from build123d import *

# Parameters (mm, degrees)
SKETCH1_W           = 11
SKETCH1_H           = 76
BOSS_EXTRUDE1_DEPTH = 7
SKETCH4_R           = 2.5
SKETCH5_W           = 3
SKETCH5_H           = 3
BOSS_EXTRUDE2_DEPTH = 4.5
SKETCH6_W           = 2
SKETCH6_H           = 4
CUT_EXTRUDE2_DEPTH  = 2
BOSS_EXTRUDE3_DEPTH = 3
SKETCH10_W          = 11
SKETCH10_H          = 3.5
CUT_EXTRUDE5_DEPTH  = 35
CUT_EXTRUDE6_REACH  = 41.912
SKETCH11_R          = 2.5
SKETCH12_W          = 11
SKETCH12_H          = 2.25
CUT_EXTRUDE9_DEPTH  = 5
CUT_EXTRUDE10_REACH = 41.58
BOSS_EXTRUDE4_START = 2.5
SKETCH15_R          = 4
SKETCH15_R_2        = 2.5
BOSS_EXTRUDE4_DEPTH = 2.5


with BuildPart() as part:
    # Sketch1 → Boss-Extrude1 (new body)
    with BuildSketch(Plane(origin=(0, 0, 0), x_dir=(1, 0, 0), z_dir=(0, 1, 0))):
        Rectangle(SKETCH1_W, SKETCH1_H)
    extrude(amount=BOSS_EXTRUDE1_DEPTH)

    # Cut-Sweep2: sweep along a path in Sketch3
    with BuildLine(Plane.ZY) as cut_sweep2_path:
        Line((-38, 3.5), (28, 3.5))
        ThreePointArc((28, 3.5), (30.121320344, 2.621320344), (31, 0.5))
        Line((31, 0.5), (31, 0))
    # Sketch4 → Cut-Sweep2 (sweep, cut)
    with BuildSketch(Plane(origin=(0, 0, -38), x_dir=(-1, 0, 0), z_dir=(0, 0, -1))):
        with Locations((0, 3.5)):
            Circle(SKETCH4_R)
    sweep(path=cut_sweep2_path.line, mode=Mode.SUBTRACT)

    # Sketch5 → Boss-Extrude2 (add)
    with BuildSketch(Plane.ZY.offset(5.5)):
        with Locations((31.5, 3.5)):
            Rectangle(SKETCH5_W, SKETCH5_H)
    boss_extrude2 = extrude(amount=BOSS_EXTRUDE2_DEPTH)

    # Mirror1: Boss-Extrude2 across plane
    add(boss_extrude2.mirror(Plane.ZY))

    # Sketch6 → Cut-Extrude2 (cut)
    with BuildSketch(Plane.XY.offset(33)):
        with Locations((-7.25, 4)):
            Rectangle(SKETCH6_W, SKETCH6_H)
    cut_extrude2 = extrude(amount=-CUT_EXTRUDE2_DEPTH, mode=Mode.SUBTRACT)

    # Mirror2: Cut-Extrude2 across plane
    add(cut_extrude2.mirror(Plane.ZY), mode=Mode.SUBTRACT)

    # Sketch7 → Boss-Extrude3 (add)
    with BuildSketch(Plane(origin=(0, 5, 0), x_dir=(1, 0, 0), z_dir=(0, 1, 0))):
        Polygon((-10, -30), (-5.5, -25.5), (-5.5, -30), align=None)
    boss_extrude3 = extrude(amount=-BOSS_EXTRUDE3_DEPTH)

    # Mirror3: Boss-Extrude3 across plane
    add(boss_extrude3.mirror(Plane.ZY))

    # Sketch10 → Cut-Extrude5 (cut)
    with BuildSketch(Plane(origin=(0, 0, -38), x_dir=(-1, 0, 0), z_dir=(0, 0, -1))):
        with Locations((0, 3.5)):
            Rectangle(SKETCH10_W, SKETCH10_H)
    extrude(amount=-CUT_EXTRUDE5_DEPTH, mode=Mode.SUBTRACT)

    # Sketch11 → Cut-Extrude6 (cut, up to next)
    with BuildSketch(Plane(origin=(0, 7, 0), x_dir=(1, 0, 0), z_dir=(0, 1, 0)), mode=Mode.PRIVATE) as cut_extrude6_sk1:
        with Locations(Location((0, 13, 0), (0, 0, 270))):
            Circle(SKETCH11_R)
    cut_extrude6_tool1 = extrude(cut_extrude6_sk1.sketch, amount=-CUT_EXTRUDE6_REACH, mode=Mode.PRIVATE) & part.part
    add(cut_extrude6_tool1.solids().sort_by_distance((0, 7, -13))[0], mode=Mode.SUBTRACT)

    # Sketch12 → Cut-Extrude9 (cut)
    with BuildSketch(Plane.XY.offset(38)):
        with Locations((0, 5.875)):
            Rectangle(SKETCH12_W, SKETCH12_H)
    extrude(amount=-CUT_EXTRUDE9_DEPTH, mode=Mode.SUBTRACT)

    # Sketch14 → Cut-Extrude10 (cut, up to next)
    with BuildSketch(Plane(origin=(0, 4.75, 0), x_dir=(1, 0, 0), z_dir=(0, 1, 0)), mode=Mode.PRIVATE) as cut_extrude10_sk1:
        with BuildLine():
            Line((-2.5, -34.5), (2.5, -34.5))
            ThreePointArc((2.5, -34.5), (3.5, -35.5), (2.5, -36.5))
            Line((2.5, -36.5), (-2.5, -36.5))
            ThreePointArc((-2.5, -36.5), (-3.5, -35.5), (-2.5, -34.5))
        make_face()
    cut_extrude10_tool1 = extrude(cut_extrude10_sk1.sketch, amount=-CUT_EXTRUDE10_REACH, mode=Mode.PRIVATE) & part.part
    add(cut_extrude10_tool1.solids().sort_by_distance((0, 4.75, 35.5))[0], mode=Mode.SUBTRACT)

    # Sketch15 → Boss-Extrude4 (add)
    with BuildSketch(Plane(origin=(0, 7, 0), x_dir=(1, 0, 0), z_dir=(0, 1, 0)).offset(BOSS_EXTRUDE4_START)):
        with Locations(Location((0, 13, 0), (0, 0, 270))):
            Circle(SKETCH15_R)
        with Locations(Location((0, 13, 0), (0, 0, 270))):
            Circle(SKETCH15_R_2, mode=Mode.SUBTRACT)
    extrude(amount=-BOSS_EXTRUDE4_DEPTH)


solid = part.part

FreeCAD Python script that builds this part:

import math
import FreeCAD as App
import Part
import Sketcher
Q = App.Units.Quantity

doc = App.newDocument("Part")
params = doc.addObject("Spreadsheet::Sheet", "Params")
for row, (alias, value) in enumerate([
    ("sketch1_width", "11 mm"),
    ("sketch1_height", "76 mm"),
    ("pad1_length", "7 mm"),
    ("sketch2_diameter", "5 mm"),
    ("sketch3_radius", "3 mm"),
    ("sketch3_height", "66 mm"),
    ("sketch3_width", "0.5 mm"),
    ("sketch4_width", "3 mm"),
    ("pad2_length", "4.5 mm"),
    ("sketch5_width", "2 mm"),
    ("sketch5_height", "4 mm"),
    ("pocket1_length", "2 mm"),
    ("sketch6_width", "4.5 mm"),
    ("pad3_length", "3 mm"),
    ("sketch7_width", "11 mm"),
    ("sketch7_height", "3.5 mm"),
    ("pocket2_length", "35 mm"),
    ("sketch8_diameter", "5 mm"),
    ("pocket3_length", "1.75 mm"),
    ("sketch9_width", "11 mm"),
    ("sketch9_height", "2.25 mm"),
    ("pocket4_length", "5 mm"),
    ("sketch10_radius", "1 mm"),
    ("sketch10_width", "5 mm"),
    ("sketch11_diameter", "8 mm"),
    ("sketch11_diameter2", "5 mm"),
    ("pad4_length", "2.5 mm"),
], start=1):
    params.set(f"A{row}", alias)
    params.set(f"B{row}", "=" + value)
    params.setAlias(f"B{row}", alias)

body = doc.addObject("PartDesign::Body", "Body")

sketch1 = body.newObject("Sketcher::SketchObject", "Sketch")
sketch1.AttachmentSupport = (doc.getObject("XZ_Plane"), [""])
sketch1.MapMode = "FlatFace"
sketch1.addGeometry([
    Part.LineSegment(App.Vector(-5.5, -38, 0), App.Vector(-5.5, 38, 0)),
    Part.LineSegment(App.Vector(-5.5, 38, 0), App.Vector(5.5, 38, 0)),
    Part.LineSegment(App.Vector(5.5, 38, 0), App.Vector(5.5, -38, 0)),
    Part.LineSegment(App.Vector(5.5, -38, 0), App.Vector(-5.5, -38, 0)),
], False)
sketch1.addConstraint([
    Sketcher.Constraint("Coincident", 0, 2, 1, 1),
    Sketcher.Constraint("Coincident", 1, 2, 2, 1),
    Sketcher.Constraint("Coincident", 2, 2, 3, 1),
    Sketcher.Constraint("Coincident", 3, 2, 0, 1),
    Sketcher.Constraint("Vertical", 0),
    Sketcher.Constraint("Horizontal", 1),
    Sketcher.Constraint("Vertical", 2),
    Sketcher.Constraint("Horizontal", 3),
    Sketcher.Constraint("Symmetric", 0, 2, 2, 2, -1, 1),
    Sketcher.Constraint("DistanceX", 1, 1, 1, 2, Q("11 mm")),
    Sketcher.Constraint("DistanceY", 0, 1, 0, 2, Q("76 mm")),
])
sketch1.setExpression("Constraints[9]", "Params.sketch1_width")
sketch1.setExpression("Constraints[10]", "Params.sketch1_height")
pad1 = body.newObject("PartDesign::Pad", "Pad")
pad1.Profile = sketch1
pad1.setExpression("Length", "Params.pad1_length")
pad1.Reversed = True

sketch2 = body.newObject("Sketcher::SketchObject", "Sketch001")
sketch2.AttachmentSupport = (doc.getObject("XY_Plane"), [""])
sketch2.MapMode = "FlatFace"
sketch2.AttachmentOffset = App.Placement(App.Vector(0, 0, -38), App.Rotation())
sketch2.addGeometry(Part.Circle(App.Vector(0, 3.5, 0), App.Vector(0, 0, 1), 2.5), False)
sketch2.addConstraint([
    Sketcher.Constraint("PointOnObject", 0, 3, -2),
    Sketcher.Constraint("Diameter", 0, Q("5 mm")),
    Sketcher.Constraint("DistanceY", -1, 1, 0, 3, Q("3.5 mm")),
])
sketch2.setExpression("Constraints[1]", "Params.sketch2_diameter")

sketch3 = body.newObject("Sketcher::SketchObject", "Sketch002")
sketch3.AttachmentSupport = (doc.getObject("YZ_Plane"), [""])
sketch3.MapMode = "FlatFace"
sketch3.addGeometry([
    Part.LineSegment(App.Vector(3.5, -38, 0), App.Vector(3.5, 28, 0)),
    Part.ArcOfCircle(Part.Circle(App.Vector(0.5, 28, 0), App.Vector(0, 0, 1), 3), math.radians(0), math.radians(90)),
    Part.LineSegment(App.Vector(0.5, 31, 0), App.Vector(0, 31, 0)),
], False)
sketch3.addConstraint([
    Sketcher.Constraint("Tangent", 0, 2, 1, 1),
    Sketcher.Constraint("Tangent", 1, 2, 2, 1),
    Sketcher.Constraint("Vertical", 0),
    Sketcher.Constraint("Horizontal", 2),
    Sketcher.Constraint("PointOnObject", 2, 2, -2),
    Sketcher.Constraint("Radius", 1, Q("3 mm")),
    Sketcher.Constraint("DistanceY", 0, 1, 0, 2, Q("66 mm")),
    Sketcher.Constraint("DistanceX", 2, 2, 2, 1, Q("0.5 mm")),
    Sketcher.Constraint("DistanceY", -1, 1, 1, 3, Q("28 mm")),
])
sketch3.setExpression("Constraints[5]", "Params.sketch3_radius")
sketch3.setExpression("Constraints[6]", "Params.sketch3_height")
sketch3.setExpression("Constraints[7]", "Params.sketch3_width")
doc.recompute()

subtractivepipe = body.newObject("PartDesign::SubtractivePipe", "SubtractivePipe")
subtractivepipe.Profile = sketch2
subtractivepipe.Spine = (sketch3, ["Edge1", "Edge2", "Edge3"])

sketch4 = body.newObject("Sketcher::SketchObject", "Sketch003")
sketch4.AttachmentSupport = (doc.getObject("YZ_Plane"), [""])
sketch4.MapMode = "FlatFace"
sketch4.AttachmentOffset = App.Placement(App.Vector(0, 0, -5.5), App.Rotation())
sketch4.addGeometry([
    Part.LineSegment(App.Vector(5, 30, 0), App.Vector(2, 30, 0)),
    Part.LineSegment(App.Vector(2, 30, 0), App.Vector(2, 33, 0)),
    Part.LineSegment(App.Vector(2, 33, 0), App.Vector(5, 33, 0)),
    Part.LineSegment(App.Vector(5, 33, 0), App.Vector(5, 30, 0)),
], False)
sketch4.addConstraint([
    Sketcher.Constraint("Coincident", 0, 2, 1, 1),
    Sketcher.Constraint("Coincident", 1, 2, 2, 1),
    Sketcher.Constraint("Coincident", 2, 2, 3, 1),
    Sketcher.Constraint("Coincident", 3, 2, 0, 1),
    Sketcher.Constraint("Horizontal", 0),
    Sketcher.Constraint("Vertical", 1),
    Sketcher.Constraint("Horizontal", 2),
    Sketcher.Constraint("Vertical", 3),
    Sketcher.Constraint("Equal", 2, 1),
    Sketcher.Constraint("DistanceX", 0, 2, 0, 1, Q("3 mm")),
    Sketcher.Constraint("DistanceX", -1, 1, 0, 2, Q("2 mm")),
    Sketcher.Constraint("DistanceY", -1, 1, 0, 2, Q("30 mm")),
])
sketch4.setExpression("Constraints[9]", "Params.sketch4_width")
pad2 = body.newObject("PartDesign::Pad", "Pad001")
pad2.Profile = sketch4
pad2.setExpression("Length", "Params.pad2_length")
pad2.Reversed = True
doc.recompute()

mirrored = body.newObject("PartDesign::Mirrored", "Mirrored")
mirrored.Originals = [pad2]
mirrored.MirrorPlane = (doc.getObject("YZ_Plane"), [""])
body.Tip = mirrored

sketch5 = body.newObject("Sketcher::SketchObject", "Sketch004")
sketch5.AttachmentSupport = (doc.getObject("XY_Plane"), [""])
sketch5.MapMode = "FlatFace"
sketch5.AttachmentOffset = App.Placement(App.Vector(0, 0, 33), App.Rotation())
sketch5.addGeometry([
    Part.LineSegment(App.Vector(-8.25, 6, 0), App.Vector(-8.25, 2, 0)),
    Part.LineSegment(App.Vector(-8.25, 2, 0), App.Vector(-6.25, 2, 0)),
    Part.LineSegment(App.Vector(-6.25, 2, 0), App.Vector(-6.25, 6, 0)),
    Part.LineSegment(App.Vector(-6.25, 6, 0), App.Vector(-8.25, 6, 0)),
], False)
sketch5.addConstraint([
    Sketcher.Constraint("Coincident", 0, 2, 1, 1),
    Sketcher.Constraint("Coincident", 1, 2, 2, 1),
    Sketcher.Constraint("Coincident", 2, 2, 3, 1),
    Sketcher.Constraint("Coincident", 3, 2, 0, 1),
    Sketcher.Constraint("Vertical", 0),
    Sketcher.Constraint("Horizontal", 1),
    Sketcher.Constraint("Vertical", 2),
    Sketcher.Constraint("Horizontal", 3),
    Sketcher.Constraint("DistanceX", 1, 1, 1, 2, Q("2 mm")),
    Sketcher.Constraint("DistanceY", 0, 2, 0, 1, Q("4 mm")),
    Sketcher.Constraint("DistanceY", -1, 1, 0, 2, Q("2 mm")),
    Sketcher.Constraint("DistanceX", 0, 2, -1, 1, Q("8.25 mm")),
])
sketch5.setExpression("Constraints[8]", "Params.sketch5_width")
sketch5.setExpression("Constraints[9]", "Params.sketch5_height")
pocket1 = body.newObject("PartDesign::Pocket", "Pocket")
pocket1.Profile = sketch5
pocket1.setExpression("Length", "Params.pocket1_length")
doc.recompute()

mirrored2 = body.newObject("PartDesign::Mirrored", "Mirrored001")
mirrored2.Originals = [pocket1]
mirrored2.MirrorPlane = (doc.getObject("YZ_Plane"), [""])
body.Tip = mirrored2

sketch6 = body.newObject("Sketcher::SketchObject", "Sketch005")
sketch6.AttachmentSupport = (doc.getObject("XZ_Plane"), [""])
sketch6.MapMode = "FlatFace"
sketch6.AttachmentOffset = App.Placement(App.Vector(0, 0, -5), App.Rotation())
sketch6.addGeometry([
    Part.LineSegment(App.Vector(-5.5, 25.5, 0), App.Vector(-10, 30, 0)),
    Part.LineSegment(App.Vector(-10, 30, 0), App.Vector(-5.5, 30, 0)),
    Part.LineSegment(App.Vector(-5.5, 30, 0), App.Vector(-5.5, 25.5, 0)),
], False)
sketch6.addConstraint([
    Sketcher.Constraint("Coincident", 0, 2, 1, 1),
    Sketcher.Constraint("Coincident", 1, 2, 2, 1),
    Sketcher.Constraint("Coincident", 2, 2, 0, 1),
    Sketcher.Constraint("Horizontal", 1),
    Sketcher.Constraint("Vertical", 2),
    Sketcher.Constraint("Equal", 1, 2),
    Sketcher.Constraint("DistanceX", 1, 1, 1, 2, Q("4.5 mm")),
    Sketcher.Constraint("DistanceX", 0, 2, -1, 1, Q("10 mm")),
    Sketcher.Constraint("DistanceY", -1, 1, 0, 2, Q("30 mm")),
])
sketch6.setExpression("Constraints[6]", "Params.sketch6_width")
pad3 = body.newObject("PartDesign::Pad", "Pad002")
pad3.Profile = sketch6
pad3.setExpression("Length", "Params.pad3_length")
doc.recompute()

mirrored3 = body.newObject("PartDesign::Mirrored", "Mirrored002")
mirrored3.Originals = [pad3]
mirrored3.MirrorPlane = (doc.getObject("YZ_Plane"), [""])
body.Tip = mirrored3

sketch7 = body.newObject("Sketcher::SketchObject", "Sketch006")
sketch7.AttachmentSupport = (doc.getObject("XY_Plane"), [""])
sketch7.MapMode = "FlatFace"
sketch7.AttachmentOffset = App.Placement(App.Vector(0, 0, -38), App.Rotation())
sketch7.addGeometry([
    Part.LineSegment(App.Vector(5.5, 5.25, 0), App.Vector(5.5, 1.75, 0)),
    Part.LineSegment(App.Vector(5.5, 1.75, 0), App.Vector(-5.5, 1.75, 0)),
    Part.LineSegment(App.Vector(-5.5, 1.75, 0), App.Vector(-5.5, 5.25, 0)),
    Part.LineSegment(App.Vector(-5.5, 5.25, 0), App.Vector(5.5, 5.25, 0)),
], False)
sketch7.addConstraint([
    Sketcher.Constraint("Coincident", 0, 2, 1, 1),
    Sketcher.Constraint("Coincident", 1, 2, 2, 1),
    Sketcher.Constraint("Coincident", 2, 2, 3, 1),
    Sketcher.Constraint("Coincident", 3, 2, 0, 1),
    Sketcher.Constraint("Vertical", 0),
    Sketcher.Constraint("Horizontal", 1),
    Sketcher.Constraint("Vertical", 2),
    Sketcher.Constraint("Horizontal", 3),
    Sketcher.Constraint("DistanceX", 1, 2, 1, 1, Q("11 mm")),
    Sketcher.Constraint("DistanceY", 0, 2, 0, 1, Q("3.5 mm")),
    Sketcher.Constraint("DistanceX", -1, 1, 0, 2, Q("5.5 mm")),
    Sketcher.Constraint("DistanceY", -1, 1, 0, 2, Q("1.75 mm")),
])
sketch7.setExpression("Constraints[8]", "Params.sketch7_width")
sketch7.setExpression("Constraints[9]", "Params.sketch7_height")
pocket2 = body.newObject("PartDesign::Pocket", "Pocket001")
pocket2.Profile = sketch7
pocket2.setExpression("Length", "Params.pocket2_length")
pocket2.Reversed = True

sketch8 = body.newObject("Sketcher::SketchObject", "Sketch007")
sketch8.AttachmentSupport = (doc.getObject("XZ_Plane"), [""])
sketch8.MapMode = "FlatFace"
sketch8.AttachmentOffset = App.Placement(App.Vector(0, 0, -7), App.Rotation())
sketch8.addGeometry(Part.Circle(App.Vector(0, -13, 0), App.Vector(0, 0, 1), 2.5), False)
sketch8.addConstraint([
    Sketcher.Constraint("PointOnObject", 0, 3, -2),
    Sketcher.Constraint("Diameter", 0, Q("5 mm")),
    Sketcher.Constraint("DistanceY", 0, 3, -1, 1, Q("13 mm")),
])
sketch8.setExpression("Constraints[1]", "Params.sketch8_diameter")
pocket3 = body.newObject("PartDesign::Pocket", "Pocket002")
pocket3.Profile = sketch8
pocket3.setExpression("Length", "Params.pocket3_length")
pocket3.Reversed = True

sketch9 = body.newObject("Sketcher::SketchObject", "Sketch008")
sketch9.AttachmentSupport = (doc.getObject("XY_Plane"), [""])
sketch9.MapMode = "FlatFace"
sketch9.AttachmentOffset = App.Placement(App.Vector(0, 0, 38), App.Rotation())
sketch9.addGeometry([
    Part.LineSegment(App.Vector(-5.5, 7, 0), App.Vector(-5.5, 4.75, 0)),
    Part.LineSegment(App.Vector(-5.5, 4.75, 0), App.Vector(5.5, 4.75, 0)),
    Part.LineSegment(App.Vector(5.5, 4.75, 0), App.Vector(5.5, 7, 0)),
    Part.LineSegment(App.Vector(5.5, 7, 0), App.Vector(-5.5, 7, 0)),
], False)
sketch9.addConstraint([
    Sketcher.Constraint("Coincident", 0, 2, 1, 1),
    Sketcher.Constraint("Coincident", 1, 2, 2, 1),
    Sketcher.Constraint("Coincident", 2, 2, 3, 1),
    Sketcher.Constraint("Coincident", 3, 2, 0, 1),
    Sketcher.Constraint("Vertical", 0),
    Sketcher.Constraint("Horizontal", 1),
    Sketcher.Constraint("Vertical", 2),
    Sketcher.Constraint("Horizontal", 3),
    Sketcher.Constraint("DistanceX", 1, 1, 1, 2, Q("11 mm")),
    Sketcher.Constraint("DistanceY", -1, 1, 2, 2, Q("7 mm")),
    Sketcher.Constraint("DistanceY", 0, 2, 0, 1, Q("2.25 mm")),
    Sketcher.Constraint("DistanceX", 0, 2, -1, 1, Q("5.5 mm")),
])
sketch9.setExpression("Constraints[8]", "Params.sketch9_width")
sketch9.setExpression("Constraints[10]", "Params.sketch9_height")
pocket4 = body.newObject("PartDesign::Pocket", "Pocket003")
pocket4.Profile = sketch9
pocket4.setExpression("Length", "Params.pocket4_length")

sketch10 = body.newObject("Sketcher::SketchObject", "Sketch009")
sketch10.AttachmentSupport = (doc.getObject("XZ_Plane"), [""])
sketch10.MapMode = "FlatFace"
sketch10.AttachmentOffset = App.Placement(App.Vector(0, 0, -4.75), App.Rotation())
sketch10.addGeometry([
    Part.LineSegment(App.Vector(2.5, 34.5, 0), App.Vector(-2.5, 34.5, 0)),
    Part.ArcOfCircle(Part.Circle(App.Vector(-2.5, 35.5, 0), App.Vector(0, 0, 1), 1), math.radians(90), math.radians(270)),
    Part.LineSegment(App.Vector(-2.5, 36.5, 0), App.Vector(2.5, 36.5, 0)),
    Part.ArcOfCircle(Part.Circle(App.Vector(2.5, 35.5, 0), App.Vector(0, 0, 1), 1), math.radians(-90), math.radians(90)),
], False)
sketch10.addConstraint([
    Sketcher.Constraint("Tangent", 0, 2, 1, 2),
    Sketcher.Constraint("Tangent", 1, 1, 2, 1),
    Sketcher.Constraint("Tangent", 2, 2, 3, 2),
    Sketcher.Constraint("Tangent", 3, 1, 0, 1),
    Sketcher.Constraint("Horizontal", 0),
    Sketcher.Constraint("Horizontal", 2),
    Sketcher.Constraint("Radius", 1, Q("1 mm")),
    Sketcher.Constraint("DistanceX", 0, 2, 0, 1, Q("5 mm")),
    Sketcher.Constraint("DistanceX", 1, 3, -1, 1, Q("2.5 mm")),
    Sketcher.Constraint("DistanceY", -1, 1, 1, 3, Q("35.5 mm")),
])
sketch10.setExpression("Constraints[6]", "Params.sketch10_radius")
sketch10.setExpression("Constraints[7]", "Params.sketch10_width")
pocket5 = body.newObject("PartDesign::Pocket", "Pocket004")
pocket5.Profile = sketch10
pocket5.Type = "UpToFirst"
pocket5.Reversed = True

sketch11 = body.newObject("Sketcher::SketchObject", "Sketch010")
sketch11.AttachmentSupport = (doc.getObject("XZ_Plane"), [""])
sketch11.MapMode = "FlatFace"
sketch11.AttachmentOffset = App.Placement(App.Vector(0, 0, -9.5), App.Rotation())
sketch11.addGeometry([
    Part.Circle(App.Vector(0, -13, 0), App.Vector(0, 0, 1), 4),
    Part.Circle(App.Vector(0, -13, 0), App.Vector(0, 0, 1), 2.5),
], False)
sketch11.addConstraint([
    Sketcher.Constraint("Coincident", 1, 3, 0, 3),
    Sketcher.Constraint("PointOnObject", 0, 3, -2),
    Sketcher.Constraint("Diameter", 0, Q("8 mm")),
    Sketcher.Constraint("Diameter", 1, Q("5 mm")),
    Sketcher.Constraint("DistanceY", 0, 3, -1, 1, Q("13 mm")),
])
sketch11.setExpression("Constraints[2]", "Params.sketch11_diameter")
sketch11.setExpression("Constraints[3]", "Params.sketch11_diameter2")
pad4 = body.newObject("PartDesign::Pad", "Pad003")
pad4.Profile = sketch11
pad4.setExpression("Length", "Params.pad4_length")

doc.recompute()
